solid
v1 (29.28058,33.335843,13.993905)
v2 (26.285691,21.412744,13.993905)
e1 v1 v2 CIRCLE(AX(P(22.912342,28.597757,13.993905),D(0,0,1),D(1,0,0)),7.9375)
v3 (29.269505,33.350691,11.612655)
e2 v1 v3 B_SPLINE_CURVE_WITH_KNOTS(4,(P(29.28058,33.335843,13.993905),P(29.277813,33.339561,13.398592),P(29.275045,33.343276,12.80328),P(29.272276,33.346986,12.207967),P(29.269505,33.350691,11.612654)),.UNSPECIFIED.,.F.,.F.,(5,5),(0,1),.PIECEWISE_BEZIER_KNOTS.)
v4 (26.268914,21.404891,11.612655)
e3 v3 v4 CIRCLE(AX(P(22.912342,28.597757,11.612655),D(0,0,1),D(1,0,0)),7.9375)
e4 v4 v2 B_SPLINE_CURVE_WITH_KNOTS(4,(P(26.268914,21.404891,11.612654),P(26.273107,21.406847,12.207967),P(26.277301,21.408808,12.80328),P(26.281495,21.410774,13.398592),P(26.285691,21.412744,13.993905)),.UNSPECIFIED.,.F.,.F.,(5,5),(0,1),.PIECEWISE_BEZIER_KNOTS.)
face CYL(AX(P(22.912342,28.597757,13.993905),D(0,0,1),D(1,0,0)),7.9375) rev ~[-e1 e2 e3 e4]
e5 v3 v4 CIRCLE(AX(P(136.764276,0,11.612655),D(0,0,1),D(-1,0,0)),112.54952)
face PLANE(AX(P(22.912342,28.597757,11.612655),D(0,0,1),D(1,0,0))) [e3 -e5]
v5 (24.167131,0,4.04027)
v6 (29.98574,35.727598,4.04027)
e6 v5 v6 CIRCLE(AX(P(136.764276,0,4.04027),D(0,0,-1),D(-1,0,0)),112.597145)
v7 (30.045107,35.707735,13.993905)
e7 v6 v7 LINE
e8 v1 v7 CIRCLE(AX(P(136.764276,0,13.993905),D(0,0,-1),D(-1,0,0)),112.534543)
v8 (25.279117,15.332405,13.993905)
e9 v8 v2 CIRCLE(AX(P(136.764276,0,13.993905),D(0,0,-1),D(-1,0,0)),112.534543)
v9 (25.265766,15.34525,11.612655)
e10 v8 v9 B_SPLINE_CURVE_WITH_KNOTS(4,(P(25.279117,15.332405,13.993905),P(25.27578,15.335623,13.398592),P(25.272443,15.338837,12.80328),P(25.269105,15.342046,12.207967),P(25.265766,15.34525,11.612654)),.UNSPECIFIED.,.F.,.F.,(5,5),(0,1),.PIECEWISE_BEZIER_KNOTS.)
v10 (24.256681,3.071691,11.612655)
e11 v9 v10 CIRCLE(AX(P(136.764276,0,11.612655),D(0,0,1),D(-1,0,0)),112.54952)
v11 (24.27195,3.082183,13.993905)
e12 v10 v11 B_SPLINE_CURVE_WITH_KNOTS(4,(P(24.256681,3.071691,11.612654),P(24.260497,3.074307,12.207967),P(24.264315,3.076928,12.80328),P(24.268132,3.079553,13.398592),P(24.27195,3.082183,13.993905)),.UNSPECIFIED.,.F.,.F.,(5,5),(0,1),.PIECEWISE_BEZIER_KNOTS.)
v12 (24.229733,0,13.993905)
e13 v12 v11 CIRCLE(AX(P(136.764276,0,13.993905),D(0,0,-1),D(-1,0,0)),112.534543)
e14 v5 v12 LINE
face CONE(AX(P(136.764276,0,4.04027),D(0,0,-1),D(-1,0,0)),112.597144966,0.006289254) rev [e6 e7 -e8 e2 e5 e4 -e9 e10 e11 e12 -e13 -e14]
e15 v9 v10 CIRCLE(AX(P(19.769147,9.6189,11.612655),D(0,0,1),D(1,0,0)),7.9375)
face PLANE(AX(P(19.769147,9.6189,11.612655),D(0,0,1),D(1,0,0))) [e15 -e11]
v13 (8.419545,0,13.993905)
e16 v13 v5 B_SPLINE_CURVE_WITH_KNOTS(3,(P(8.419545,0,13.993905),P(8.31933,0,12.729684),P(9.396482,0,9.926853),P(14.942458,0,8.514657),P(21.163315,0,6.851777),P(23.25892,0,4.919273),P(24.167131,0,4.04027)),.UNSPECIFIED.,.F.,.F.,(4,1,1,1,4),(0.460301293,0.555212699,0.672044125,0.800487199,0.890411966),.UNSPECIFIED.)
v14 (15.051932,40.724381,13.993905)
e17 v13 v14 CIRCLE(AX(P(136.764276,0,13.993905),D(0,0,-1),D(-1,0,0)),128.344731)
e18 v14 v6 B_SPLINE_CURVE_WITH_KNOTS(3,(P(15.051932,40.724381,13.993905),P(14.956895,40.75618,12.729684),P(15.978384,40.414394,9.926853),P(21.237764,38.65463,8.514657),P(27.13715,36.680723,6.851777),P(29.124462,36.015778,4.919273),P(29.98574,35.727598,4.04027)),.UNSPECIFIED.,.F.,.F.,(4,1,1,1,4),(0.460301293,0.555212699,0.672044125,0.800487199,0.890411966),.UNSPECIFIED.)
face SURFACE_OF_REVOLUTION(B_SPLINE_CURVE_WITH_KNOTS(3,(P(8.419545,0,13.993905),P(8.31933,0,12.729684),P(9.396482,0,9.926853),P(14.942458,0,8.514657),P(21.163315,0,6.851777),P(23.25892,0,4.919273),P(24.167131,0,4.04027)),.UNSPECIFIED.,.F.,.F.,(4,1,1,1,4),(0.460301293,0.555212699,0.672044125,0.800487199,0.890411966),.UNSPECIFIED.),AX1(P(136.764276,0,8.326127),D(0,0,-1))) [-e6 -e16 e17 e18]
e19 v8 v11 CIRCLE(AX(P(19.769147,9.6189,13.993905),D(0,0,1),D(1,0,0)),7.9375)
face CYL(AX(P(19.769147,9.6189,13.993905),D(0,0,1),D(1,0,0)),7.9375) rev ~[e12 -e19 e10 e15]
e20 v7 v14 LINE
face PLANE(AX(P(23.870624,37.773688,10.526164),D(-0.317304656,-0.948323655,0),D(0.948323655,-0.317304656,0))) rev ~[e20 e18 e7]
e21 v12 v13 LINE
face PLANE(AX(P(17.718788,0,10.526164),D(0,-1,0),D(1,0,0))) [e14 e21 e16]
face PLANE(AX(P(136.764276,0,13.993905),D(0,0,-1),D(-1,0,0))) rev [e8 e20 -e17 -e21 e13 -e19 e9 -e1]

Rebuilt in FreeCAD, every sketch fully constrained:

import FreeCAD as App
import Part
import Sketcher
from FreeCAD import Vector
Q = App.Units.Quantity

doc = App.newDocument("Part")
body = doc.addObject("PartDesign::Body", "Body")

# Sketch on XZ plane
sketch1 = body.newObject("Sketcher::SketchObject", "Sketch")
sketch1.AttachmentSupport = (doc.getObject("XZ_Plane"), [""])
sketch1.MapMode = "FlatFace"
sketch1.addGeometry(Part.LineSegment(Vector(24.229733, 13.993905, 0), Vector(8.419545, 13.993905, 0)), False)
sketch1.addGeometry(Part.BSplineCurve([Vector(8.419545, 13.993905, 0), Vector(8.31933, 12.729684, 0), Vector(9.396482, 9.926853, 0), Vector(14.942458, 8.514657, 0), Vector(21.163315, 6.851777, 0), Vector(23.25892, 4.919273, 0), Vector(24.167131, 4.04027, 0)], [4, 1, 1, 1, 4], [0.460301293, 0.555212699, 0.672044125, 0.800487199, 0.890411966], False, 3, [1, 1, 1, 1, 1, 1, 1], False), False)
sketch1.addGeometry(Part.LineSegment(Vector(24.167131, 4.04027, 0), Vector(24.229733, 13.993905, 0)), False)
sketch1.addGeometry(Part.LineSegment(Vector(136.764276, 13.993905, 0), Vector(136.764276, 4.04027, 0)), True)  # axis
sketch1.addConstraint(Sketcher.Constraint("Block", 1))
sketch1.addConstraint(Sketcher.Constraint("Coincident", 0, 2, 1, 1))
sketch1.addConstraint(Sketcher.Constraint("Coincident", 1, 2, 2, 1))
sketch1.addConstraint(Sketcher.Constraint("Coincident", 2, 2, 0, 1))
sketch1.addConstraint(Sketcher.Constraint("Horizontal", 0))
sketch1.addConstraint(Sketcher.Constraint("Vertical", 3))
sketch1.addConstraint(Sketcher.Constraint("Horizontal", 2, 2, 3, 1))
sketch1.addConstraint(Sketcher.Constraint("DistanceX", 0, 2, 0, 1, 15.810188))
sketch1.addConstraint(Sketcher.Constraint("DistanceY", 3, 2, 3, 1, 9.953635))
sketch1.addConstraint(Sketcher.Constraint("DistanceX", 0, 2, 3, 1, 128.344731))
revolution = body.newObject("PartDesign::Revolution", "Revolution")
revolution.Profile = sketch1
revolution.ReferenceAxis = (sketch1, ["Axis0"])
revolution.Angle = 18.5

# Sketch on XY plane
sketch2 = body.newObject("Sketcher::SketchObject", "Sketch001")
sketch2.AttachmentSupport = (doc.getObject("XY_Plane"), [""])
sketch2.MapMode = "FlatFace"
sketch2.AttachmentOffset = App.Placement(Vector(0, 0, 13.993905), App.Rotation())
sketch2.addGeometry(Part.Circle(Vector(23, 29, 0), Vector(0, 0, 1), 8), False)
sketch2.addGeometry(Part.Circle(Vector(20, 10, 0), Vector(0, 0, 1), 8), False)
sketch2.addConstraint(Sketcher.Constraint("Equal", 0, 1))
sketch2.addConstraint(Sketcher.Constraint("Diameter", 0, Q("0.625 in")))
sketch2.addConstraint(Sketcher.Constraint("DistanceY", -1, 1, 1, 3, 9.6189))
sketch2.addConstraint(Sketcher.Constraint("DistanceX", -1, 1, 0, 3, 22.912342))
sketch2.addConstraint(Sketcher.Constraint("DistanceY", -1, 1, 0, 3, 28.597757))
sketch2.addConstraint(Sketcher.Constraint("DistanceX", -1, 1, 1, 3, 19.769147))
pocket1 = body.newObject("PartDesign::Pocket", "Pocket")
pocket1.Profile = sketch2
pocket1.Length = Q("0.09375 in")

doc.recompute()
